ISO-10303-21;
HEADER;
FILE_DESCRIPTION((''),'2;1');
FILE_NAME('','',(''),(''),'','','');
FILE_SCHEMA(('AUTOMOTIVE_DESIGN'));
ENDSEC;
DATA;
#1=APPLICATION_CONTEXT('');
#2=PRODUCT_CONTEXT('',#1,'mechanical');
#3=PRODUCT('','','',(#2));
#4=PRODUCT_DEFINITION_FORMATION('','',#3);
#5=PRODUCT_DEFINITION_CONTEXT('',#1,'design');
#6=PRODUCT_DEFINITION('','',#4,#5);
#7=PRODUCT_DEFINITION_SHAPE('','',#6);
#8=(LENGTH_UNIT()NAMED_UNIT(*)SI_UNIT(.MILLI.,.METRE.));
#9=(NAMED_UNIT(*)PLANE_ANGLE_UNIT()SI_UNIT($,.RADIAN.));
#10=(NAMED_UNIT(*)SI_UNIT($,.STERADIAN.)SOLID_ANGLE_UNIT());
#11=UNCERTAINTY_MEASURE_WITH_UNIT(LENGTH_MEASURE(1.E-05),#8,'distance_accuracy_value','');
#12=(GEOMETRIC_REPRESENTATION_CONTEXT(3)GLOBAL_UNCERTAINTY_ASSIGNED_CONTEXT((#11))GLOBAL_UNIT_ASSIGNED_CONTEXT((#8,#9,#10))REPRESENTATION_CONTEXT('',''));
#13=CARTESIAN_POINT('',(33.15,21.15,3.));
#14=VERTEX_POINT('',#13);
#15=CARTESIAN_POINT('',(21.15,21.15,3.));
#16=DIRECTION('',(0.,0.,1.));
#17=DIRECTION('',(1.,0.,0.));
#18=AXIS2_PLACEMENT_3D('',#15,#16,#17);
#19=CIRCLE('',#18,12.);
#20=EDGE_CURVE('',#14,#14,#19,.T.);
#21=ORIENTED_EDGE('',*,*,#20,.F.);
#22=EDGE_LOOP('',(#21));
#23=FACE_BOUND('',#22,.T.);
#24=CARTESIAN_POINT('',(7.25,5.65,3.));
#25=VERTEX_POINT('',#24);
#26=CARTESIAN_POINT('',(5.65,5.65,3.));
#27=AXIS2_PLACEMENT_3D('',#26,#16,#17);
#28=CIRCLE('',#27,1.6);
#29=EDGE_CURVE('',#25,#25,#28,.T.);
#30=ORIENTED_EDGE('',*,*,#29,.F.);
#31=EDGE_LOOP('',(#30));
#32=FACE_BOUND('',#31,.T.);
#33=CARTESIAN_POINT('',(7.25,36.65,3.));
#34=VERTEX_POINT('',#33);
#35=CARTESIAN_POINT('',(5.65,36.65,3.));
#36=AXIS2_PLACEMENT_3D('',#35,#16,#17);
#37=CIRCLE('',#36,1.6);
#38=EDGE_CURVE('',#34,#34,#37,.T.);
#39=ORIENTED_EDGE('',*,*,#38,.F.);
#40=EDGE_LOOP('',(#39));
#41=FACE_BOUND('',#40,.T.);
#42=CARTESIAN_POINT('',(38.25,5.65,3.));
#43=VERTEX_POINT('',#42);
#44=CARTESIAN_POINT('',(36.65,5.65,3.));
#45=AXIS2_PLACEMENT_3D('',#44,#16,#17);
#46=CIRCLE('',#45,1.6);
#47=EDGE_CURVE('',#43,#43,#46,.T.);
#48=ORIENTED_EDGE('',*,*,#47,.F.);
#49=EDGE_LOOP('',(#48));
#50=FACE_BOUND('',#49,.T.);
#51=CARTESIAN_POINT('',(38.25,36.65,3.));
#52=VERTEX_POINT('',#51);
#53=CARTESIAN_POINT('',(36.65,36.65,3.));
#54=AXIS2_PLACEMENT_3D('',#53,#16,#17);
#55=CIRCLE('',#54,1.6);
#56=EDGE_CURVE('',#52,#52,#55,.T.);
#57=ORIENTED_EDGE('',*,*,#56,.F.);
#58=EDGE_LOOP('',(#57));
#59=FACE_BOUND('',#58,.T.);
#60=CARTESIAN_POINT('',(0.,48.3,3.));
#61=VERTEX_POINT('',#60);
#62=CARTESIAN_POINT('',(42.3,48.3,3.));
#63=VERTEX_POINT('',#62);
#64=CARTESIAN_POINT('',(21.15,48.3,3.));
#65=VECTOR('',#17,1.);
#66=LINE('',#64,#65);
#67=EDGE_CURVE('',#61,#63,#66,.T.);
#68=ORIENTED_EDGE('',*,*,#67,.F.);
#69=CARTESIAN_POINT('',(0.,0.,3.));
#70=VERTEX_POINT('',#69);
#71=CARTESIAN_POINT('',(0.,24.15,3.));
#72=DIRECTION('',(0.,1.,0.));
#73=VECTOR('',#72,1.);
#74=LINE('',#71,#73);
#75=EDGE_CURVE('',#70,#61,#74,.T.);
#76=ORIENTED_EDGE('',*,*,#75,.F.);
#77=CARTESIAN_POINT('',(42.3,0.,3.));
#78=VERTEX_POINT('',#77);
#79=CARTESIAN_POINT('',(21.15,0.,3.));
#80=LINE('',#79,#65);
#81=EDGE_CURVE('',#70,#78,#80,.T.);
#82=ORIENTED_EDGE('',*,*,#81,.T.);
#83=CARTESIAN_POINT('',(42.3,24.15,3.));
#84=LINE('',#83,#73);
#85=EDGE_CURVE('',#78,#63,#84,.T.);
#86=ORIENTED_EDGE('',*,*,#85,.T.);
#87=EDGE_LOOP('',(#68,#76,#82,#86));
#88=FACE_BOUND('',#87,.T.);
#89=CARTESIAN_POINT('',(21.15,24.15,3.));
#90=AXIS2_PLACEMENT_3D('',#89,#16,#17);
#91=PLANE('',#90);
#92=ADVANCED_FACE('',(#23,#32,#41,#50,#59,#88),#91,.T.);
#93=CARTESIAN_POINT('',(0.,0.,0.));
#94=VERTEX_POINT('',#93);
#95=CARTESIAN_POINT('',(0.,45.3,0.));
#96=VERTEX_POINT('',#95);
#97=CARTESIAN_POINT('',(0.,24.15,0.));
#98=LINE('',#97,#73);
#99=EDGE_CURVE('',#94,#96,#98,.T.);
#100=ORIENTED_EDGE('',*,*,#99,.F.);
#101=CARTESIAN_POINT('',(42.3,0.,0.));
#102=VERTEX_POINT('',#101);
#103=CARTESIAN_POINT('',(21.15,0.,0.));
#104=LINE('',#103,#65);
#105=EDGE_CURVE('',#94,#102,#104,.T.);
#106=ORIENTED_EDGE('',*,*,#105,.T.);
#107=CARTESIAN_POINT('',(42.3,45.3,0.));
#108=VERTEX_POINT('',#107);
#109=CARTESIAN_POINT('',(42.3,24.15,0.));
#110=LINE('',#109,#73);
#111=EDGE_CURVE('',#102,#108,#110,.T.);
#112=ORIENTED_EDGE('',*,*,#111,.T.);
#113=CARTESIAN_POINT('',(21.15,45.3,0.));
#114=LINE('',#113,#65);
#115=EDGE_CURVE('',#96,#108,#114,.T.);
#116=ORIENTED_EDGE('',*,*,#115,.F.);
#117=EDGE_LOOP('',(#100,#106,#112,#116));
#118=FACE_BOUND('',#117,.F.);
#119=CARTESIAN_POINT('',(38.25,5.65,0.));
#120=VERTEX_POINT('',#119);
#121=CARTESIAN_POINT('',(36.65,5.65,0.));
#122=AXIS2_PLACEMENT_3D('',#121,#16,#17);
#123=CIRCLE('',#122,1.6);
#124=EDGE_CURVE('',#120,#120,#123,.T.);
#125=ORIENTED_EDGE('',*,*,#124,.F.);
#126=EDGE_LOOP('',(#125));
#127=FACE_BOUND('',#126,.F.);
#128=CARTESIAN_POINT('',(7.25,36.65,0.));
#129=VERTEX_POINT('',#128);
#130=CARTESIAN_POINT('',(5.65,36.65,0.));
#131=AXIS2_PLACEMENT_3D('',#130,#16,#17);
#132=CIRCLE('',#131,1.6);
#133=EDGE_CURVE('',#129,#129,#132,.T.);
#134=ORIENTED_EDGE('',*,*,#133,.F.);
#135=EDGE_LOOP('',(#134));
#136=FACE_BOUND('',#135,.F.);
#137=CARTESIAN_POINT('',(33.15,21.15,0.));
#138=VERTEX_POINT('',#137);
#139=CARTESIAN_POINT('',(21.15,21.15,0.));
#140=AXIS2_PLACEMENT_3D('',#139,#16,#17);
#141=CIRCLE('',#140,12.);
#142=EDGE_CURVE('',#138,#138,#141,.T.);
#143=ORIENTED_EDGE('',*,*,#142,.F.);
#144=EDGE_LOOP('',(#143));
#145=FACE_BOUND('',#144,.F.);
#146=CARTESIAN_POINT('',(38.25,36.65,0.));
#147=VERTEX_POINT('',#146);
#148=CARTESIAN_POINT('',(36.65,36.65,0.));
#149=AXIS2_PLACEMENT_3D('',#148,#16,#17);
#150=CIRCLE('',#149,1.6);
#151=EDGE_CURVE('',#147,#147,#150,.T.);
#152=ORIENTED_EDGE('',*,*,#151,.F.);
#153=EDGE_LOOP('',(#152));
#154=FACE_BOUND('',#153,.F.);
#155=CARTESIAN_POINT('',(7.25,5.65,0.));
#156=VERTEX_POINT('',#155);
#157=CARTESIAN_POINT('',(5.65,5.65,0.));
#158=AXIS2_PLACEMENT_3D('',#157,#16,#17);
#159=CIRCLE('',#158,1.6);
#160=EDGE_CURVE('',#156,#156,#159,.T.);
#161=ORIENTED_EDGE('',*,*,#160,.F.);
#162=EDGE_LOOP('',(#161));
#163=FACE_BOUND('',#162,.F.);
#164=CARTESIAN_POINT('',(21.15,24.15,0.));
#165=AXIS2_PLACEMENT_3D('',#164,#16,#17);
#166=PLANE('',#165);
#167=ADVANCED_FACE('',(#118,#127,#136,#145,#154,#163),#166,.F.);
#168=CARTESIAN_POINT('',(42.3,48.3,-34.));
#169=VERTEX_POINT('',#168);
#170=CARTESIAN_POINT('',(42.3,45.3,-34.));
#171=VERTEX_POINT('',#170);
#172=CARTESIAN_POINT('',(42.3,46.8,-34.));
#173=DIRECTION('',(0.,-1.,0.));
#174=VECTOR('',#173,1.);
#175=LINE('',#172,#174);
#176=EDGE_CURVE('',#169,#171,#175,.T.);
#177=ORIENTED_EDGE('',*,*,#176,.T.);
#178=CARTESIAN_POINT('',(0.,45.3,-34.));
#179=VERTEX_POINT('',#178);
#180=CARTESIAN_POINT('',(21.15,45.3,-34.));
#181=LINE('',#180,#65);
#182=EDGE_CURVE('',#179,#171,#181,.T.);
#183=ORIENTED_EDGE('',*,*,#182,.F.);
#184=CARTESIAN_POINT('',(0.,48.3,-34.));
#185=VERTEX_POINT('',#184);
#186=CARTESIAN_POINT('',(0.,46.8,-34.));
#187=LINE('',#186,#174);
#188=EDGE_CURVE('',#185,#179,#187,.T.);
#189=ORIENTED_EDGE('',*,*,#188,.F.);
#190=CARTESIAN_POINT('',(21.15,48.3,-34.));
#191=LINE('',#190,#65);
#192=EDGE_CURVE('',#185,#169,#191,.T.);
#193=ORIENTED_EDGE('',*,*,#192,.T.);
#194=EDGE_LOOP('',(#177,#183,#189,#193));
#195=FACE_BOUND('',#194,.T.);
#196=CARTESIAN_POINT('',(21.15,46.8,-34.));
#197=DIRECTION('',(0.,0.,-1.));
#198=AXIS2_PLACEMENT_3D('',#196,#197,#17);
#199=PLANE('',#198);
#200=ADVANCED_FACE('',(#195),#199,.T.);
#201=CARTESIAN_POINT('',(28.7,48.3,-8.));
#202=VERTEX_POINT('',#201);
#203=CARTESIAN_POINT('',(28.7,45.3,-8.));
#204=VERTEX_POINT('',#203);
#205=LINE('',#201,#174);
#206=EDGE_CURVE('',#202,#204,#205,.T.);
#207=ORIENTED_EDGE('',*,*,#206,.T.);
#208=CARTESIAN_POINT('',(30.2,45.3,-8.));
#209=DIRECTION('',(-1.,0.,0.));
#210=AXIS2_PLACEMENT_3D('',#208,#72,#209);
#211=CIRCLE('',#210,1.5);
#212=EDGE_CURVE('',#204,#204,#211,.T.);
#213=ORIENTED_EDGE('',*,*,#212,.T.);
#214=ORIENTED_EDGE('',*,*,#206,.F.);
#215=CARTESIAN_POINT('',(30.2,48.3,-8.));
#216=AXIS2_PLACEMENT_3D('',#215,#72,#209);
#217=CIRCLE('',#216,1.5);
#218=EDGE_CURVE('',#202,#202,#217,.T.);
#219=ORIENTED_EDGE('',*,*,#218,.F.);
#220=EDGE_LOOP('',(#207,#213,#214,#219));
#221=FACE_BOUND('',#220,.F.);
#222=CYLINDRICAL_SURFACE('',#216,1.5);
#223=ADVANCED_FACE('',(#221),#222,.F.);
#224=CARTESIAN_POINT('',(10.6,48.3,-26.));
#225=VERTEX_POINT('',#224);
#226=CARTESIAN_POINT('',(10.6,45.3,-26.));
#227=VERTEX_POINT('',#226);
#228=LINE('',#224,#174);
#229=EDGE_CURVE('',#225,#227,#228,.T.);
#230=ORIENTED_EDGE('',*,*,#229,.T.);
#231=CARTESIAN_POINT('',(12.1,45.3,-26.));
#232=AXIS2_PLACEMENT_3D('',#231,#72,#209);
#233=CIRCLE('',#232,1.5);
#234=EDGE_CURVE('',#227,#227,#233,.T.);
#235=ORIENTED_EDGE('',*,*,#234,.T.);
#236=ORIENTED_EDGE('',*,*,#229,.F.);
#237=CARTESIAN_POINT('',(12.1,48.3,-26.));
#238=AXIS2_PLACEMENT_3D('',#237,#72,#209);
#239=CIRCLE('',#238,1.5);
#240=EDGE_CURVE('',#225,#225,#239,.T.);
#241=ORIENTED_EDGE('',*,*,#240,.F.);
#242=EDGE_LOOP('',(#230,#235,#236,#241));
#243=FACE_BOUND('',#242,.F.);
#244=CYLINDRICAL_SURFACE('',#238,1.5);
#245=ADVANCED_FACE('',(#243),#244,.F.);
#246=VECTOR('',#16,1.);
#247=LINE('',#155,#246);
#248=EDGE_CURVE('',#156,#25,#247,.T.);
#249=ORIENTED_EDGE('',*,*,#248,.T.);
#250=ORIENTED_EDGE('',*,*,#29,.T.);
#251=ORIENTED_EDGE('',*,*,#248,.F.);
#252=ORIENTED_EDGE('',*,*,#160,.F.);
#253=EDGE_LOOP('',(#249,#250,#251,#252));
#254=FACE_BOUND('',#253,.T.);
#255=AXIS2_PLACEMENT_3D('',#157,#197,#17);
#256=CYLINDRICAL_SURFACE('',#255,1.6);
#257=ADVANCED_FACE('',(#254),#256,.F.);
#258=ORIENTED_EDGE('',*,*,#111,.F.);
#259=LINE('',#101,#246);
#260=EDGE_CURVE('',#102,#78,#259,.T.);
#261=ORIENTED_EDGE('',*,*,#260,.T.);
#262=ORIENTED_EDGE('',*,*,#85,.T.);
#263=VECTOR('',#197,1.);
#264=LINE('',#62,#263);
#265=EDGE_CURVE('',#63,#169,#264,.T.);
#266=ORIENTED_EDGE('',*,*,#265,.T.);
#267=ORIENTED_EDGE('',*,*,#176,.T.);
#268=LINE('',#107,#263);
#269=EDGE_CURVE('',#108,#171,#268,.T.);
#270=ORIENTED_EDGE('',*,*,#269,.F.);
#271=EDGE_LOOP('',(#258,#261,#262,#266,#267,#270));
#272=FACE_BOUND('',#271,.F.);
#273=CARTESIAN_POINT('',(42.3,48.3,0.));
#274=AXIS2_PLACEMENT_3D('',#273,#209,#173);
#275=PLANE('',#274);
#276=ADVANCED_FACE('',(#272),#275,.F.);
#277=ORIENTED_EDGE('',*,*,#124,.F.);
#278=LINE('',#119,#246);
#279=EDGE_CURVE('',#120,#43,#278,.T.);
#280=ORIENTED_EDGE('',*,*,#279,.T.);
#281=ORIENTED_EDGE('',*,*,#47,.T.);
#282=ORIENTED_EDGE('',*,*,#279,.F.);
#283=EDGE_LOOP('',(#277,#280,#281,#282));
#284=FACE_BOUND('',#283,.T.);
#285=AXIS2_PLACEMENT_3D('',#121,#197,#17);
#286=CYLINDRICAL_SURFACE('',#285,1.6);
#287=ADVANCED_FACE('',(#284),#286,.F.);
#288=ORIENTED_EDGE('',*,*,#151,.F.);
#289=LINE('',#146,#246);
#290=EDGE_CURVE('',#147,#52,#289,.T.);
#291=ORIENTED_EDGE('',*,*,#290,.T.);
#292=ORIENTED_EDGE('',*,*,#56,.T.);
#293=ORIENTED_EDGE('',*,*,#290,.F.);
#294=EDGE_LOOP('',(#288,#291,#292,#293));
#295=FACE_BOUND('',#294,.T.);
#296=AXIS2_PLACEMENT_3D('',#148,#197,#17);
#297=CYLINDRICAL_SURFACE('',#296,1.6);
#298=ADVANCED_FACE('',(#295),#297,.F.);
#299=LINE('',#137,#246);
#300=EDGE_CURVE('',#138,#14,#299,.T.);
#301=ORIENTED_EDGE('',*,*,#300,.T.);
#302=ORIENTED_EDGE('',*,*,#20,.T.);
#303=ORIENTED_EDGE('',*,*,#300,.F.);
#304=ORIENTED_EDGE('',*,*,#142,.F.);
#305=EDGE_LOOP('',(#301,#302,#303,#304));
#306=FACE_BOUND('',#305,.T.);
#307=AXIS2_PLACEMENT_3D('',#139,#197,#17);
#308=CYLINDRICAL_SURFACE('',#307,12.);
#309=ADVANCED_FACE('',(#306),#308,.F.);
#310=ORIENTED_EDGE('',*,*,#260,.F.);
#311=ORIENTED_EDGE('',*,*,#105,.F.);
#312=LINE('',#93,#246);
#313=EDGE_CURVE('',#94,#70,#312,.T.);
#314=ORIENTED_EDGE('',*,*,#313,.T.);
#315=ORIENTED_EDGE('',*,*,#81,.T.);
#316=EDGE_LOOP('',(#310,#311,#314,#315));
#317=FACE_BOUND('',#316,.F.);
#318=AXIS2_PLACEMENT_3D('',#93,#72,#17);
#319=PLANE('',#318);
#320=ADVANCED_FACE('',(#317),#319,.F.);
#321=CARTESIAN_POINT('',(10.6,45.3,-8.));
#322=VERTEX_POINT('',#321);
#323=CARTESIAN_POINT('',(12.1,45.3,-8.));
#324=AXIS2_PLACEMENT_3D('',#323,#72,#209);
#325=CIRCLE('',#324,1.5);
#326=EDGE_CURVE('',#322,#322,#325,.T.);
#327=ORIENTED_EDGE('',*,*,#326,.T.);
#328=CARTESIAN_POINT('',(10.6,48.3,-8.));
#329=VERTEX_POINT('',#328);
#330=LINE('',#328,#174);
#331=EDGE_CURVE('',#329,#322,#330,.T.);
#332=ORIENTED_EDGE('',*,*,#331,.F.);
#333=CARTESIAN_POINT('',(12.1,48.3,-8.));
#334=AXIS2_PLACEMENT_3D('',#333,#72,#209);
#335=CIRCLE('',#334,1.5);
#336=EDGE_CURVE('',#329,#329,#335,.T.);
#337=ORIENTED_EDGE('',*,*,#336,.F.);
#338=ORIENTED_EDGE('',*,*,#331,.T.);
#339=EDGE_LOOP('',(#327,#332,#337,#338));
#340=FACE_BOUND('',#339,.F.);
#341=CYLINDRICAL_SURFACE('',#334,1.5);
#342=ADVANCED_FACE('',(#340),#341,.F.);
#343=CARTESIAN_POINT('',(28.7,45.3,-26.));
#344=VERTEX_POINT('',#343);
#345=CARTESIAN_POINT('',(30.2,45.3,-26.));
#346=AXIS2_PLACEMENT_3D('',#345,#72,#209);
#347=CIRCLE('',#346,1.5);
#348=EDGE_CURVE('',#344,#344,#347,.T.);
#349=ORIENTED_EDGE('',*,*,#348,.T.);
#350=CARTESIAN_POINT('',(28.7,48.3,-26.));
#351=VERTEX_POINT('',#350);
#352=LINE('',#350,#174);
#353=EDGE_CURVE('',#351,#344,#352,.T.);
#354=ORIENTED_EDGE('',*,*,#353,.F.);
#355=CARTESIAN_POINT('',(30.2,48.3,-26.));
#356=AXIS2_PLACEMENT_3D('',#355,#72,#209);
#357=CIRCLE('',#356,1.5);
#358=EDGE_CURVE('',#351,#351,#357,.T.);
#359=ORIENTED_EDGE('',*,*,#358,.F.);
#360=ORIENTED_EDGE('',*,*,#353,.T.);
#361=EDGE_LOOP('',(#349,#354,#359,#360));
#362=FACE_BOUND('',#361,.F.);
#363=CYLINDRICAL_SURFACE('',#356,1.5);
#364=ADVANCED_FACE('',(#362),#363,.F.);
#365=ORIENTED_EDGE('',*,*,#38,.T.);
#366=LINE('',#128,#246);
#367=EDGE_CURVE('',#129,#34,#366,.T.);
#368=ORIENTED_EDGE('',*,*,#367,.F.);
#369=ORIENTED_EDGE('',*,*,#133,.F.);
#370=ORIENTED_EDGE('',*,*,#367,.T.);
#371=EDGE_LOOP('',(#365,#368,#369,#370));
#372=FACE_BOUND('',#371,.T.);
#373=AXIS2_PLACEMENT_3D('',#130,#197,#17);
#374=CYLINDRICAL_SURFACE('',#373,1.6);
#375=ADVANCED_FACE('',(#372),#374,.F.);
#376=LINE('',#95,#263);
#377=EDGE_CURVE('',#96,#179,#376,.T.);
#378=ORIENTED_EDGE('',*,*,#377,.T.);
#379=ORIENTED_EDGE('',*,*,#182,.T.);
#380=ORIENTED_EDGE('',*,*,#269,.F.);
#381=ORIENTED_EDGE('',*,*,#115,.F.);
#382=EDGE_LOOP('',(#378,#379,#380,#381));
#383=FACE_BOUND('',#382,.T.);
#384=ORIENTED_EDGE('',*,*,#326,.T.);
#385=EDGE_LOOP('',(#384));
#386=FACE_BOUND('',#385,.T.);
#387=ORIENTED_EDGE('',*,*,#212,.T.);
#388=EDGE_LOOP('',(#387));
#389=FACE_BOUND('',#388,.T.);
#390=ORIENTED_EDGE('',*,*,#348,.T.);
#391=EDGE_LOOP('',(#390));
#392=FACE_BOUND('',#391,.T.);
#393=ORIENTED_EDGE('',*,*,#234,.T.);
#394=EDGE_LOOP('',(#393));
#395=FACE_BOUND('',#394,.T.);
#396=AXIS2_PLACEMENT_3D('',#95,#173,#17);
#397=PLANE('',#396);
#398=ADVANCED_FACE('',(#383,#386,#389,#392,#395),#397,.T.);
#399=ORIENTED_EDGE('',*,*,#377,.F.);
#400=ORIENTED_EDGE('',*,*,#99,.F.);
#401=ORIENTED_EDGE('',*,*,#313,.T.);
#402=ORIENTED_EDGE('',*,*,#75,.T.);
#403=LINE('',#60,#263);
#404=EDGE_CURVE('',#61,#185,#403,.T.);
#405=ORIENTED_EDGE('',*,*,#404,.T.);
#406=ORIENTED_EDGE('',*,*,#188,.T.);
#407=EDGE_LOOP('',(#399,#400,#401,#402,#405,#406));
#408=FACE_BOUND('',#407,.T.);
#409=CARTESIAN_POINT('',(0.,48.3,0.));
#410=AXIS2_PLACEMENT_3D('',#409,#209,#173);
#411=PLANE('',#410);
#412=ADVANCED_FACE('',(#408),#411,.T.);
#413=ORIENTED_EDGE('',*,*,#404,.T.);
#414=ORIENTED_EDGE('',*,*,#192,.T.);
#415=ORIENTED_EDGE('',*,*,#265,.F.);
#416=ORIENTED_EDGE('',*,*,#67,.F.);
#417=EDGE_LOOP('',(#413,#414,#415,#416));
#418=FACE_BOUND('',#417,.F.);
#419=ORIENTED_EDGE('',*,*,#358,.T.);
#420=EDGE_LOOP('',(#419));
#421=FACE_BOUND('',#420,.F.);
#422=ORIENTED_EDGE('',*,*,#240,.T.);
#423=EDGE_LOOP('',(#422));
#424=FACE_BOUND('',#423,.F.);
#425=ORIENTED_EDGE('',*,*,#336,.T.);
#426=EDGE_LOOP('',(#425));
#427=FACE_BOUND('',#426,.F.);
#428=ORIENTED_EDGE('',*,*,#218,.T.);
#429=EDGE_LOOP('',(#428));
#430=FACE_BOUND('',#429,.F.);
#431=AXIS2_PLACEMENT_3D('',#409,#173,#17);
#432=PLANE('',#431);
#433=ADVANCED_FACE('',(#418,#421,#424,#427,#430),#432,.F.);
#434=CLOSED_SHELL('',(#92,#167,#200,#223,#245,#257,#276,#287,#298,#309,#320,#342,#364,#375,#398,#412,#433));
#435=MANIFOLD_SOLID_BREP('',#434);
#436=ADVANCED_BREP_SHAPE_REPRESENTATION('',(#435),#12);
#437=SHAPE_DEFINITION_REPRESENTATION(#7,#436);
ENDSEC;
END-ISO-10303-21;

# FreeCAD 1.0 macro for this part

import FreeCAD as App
import Part
import Sketcher

V = App.Vector
Q = App.Units.Quantity

doc = App.newDocument("Part")
body = doc.addObject("PartDesign::Body", "Body")

sketch1 = body.newObject("Sketcher::SketchObject", "Sketch")
sketch1.AttachmentSupport = (doc.getObject("XY_Plane"), [""])
sketch1.MapMode = "FlatFace"
sketch1.addGeometry(Part.LineSegment(V(0, 48.3, 0), V(0, 0, 0)), False)
sketch1.addGeometry(Part.LineSegment(V(0, 0, 0), V(42.3, 0, 0)), False)
sketch1.addGeometry(Part.LineSegment(V(42.3, 0, 0), V(42.3, 48.3, 0)), False)
sketch1.addGeometry(Part.LineSegment(V(42.3, 48.3, 0), V(0, 48.3, 0)), False)
sketch1.addGeometry(Part.Circle(V(5.65, 5.65, 0), V(0, 0, 1), 1.6), False)
sketch1.addGeometry(Part.Circle(V(36.65, 5.65, 0), V(0, 0, 1), 1.6), False)
sketch1.addGeometry(Part.Circle(V(21.15, 21.15, 0), V(0, 0, 1), 12), False)
sketch1.addGeometry(Part.Circle(V(5.65, 36.65, 0), V(0, 0, 1), 1.6), False)
sketch1.addGeometry(Part.Circle(V(36.65, 36.65, 0), V(0, 0, 1), 1.6), False)
sketch1.addConstraint(Sketcher.Constraint("Coincident", 0, 2, 1, 1))
sketch1.addConstraint(Sketcher.Constraint("Coincident", 1, 2, 2, 1))
sketch1.addConstraint(Sketcher.Constraint("Coincident", 2, 2, 3, 1))
sketch1.addConstraint(Sketcher.Constraint("Coincident", 3, 2, 0, 1))
sketch1.addConstraint(Sketcher.Constraint("Vertical", 0))
sketch1.addConstraint(Sketcher.Constraint("Horizontal", 1))
sketch1.addConstraint(Sketcher.Constraint("Vertical", 2))
sketch1.addConstraint(Sketcher.Constraint("Horizontal", 3))
sketch1.addConstraint(Sketcher.Constraint("Coincident", 0, 2, -1, 1))
sketch1.addConstraint(Sketcher.Constraint("Equal", 4, 5))
sketch1.addConstraint(Sketcher.Constraint("Equal", 5, 7))
sketch1.addConstraint(Sketcher.Constraint("Equal", 7, 8))
sketch1.addConstraint(Sketcher.Constraint("Horizontal", 4, 3, 5, 3))
sketch1.addConstraint(Sketcher.Constraint("Horizontal", 7, 3, 8, 3))
sketch1.addConstraint(Sketcher.Constraint("Vertical", 4, 3, 7, 3))
sketch1.addConstraint(Sketcher.Constraint("Vertical", 5, 3, 8, 3))
sketch1.addConstraint(Sketcher.Constraint("Diameter", 6, Q("24 mm")))
sketch1.addConstraint(Sketcher.Constraint("Diameter", 4, Q("3.2 mm")))
sketch1.addConstraint(Sketcher.Constraint("DistanceX", 1, 1, 1, 2, Q("42.3 mm")))
sketch1.addConstraint(Sketcher.Constraint("DistanceY", 0, 2, 0, 1, Q("48.3 mm")))
sketch1.addConstraint(Sketcher.Constraint("DistanceX", 4, 3, 5, 3, Q("31 mm")))
sketch1.addConstraint(Sketcher.Constraint("DistanceY", 4, 3, 7, 3, Q("31 mm")))
sketch1.addConstraint(Sketcher.Constraint("DistanceX", 4, 3, 6, 3, Q("15.5 mm")))
sketch1.addConstraint(Sketcher.Constraint("DistanceY", 4, 3, 6, 3, Q("15.5 mm")))
sketch1.addConstraint(Sketcher.Constraint("DistanceX", -1, 1, 4, 3, Q("5.65 mm")))
sketch1.addConstraint(Sketcher.Constraint("DistanceY", -1, 1, 4, 3, Q("5.65 mm")))
pad1 = body.newObject("PartDesign::Pad", "Pad")
pad1.Profile = sketch1
pad1.Length = 3

sketch2 = body.newObject("Sketcher::SketchObject", "Sketch001")
sketch2.AttachmentSupport = (doc.getObject("XY_Plane"), [""])
sketch2.MapMode = "FlatFace"
sketch2.addGeometry(Part.LineSegment(V(0, 45.3, 0), V(0, 48.3, 0)), False)
sketch2.addGeometry(Part.LineSegment(V(0, 48.3, 0), V(42.3, 48.3, 0)), False)
sketch2.addGeometry(Part.LineSegment(V(42.3, 48.3, 0), V(42.3, 45.3, 0)), False)
sketch2.addGeometry(Part.LineSegment(V(42.3, 45.3, 0), V(0, 45.3, 0)), False)
sketch2.addConstraint(Sketcher.Constraint("Coincident", 0, 2, 1, 1))
sketch2.addConstraint(Sketcher.Constraint("Coincident", 1, 2, 2, 1))
sketch2.addConstraint(Sketcher.Constraint("Coincident", 2, 2, 3, 1))
sketch2.addConstraint(Sketcher.Constraint("Coincident", 3, 2, 0, 1))
sketch2.addConstraint(Sketcher.Constraint("Vertical", 0))
sketch2.addConstraint(Sketcher.Constraint("Horizontal", 1))
sketch2.addConstraint(Sketcher.Constraint("Vertical", 2))
sketch2.addConstraint(Sketcher.Constraint("Horizontal", 3))
sketch2.addConstraint(Sketcher.Constraint("PointOnObject", 0, 2, -2))
sketch2.addConstraint(Sketcher.Constraint("DistanceY", 0, 1, 0, 2, Q("3 mm")))
sketch2.addConstraint(Sketcher.Constraint("DistanceX", 1, 1, 1, 2, Q("42.3 mm")))
sketch2.addConstraint(Sketcher.Constraint("DistanceY", -1, 1, 0, 2, Q("48.3 mm")))
pad2 = body.newObject("PartDesign::Pad", "Pad001")
pad2.Profile = sketch2
pad2.Length = 34
pad2.Reversed = True

sketch3 = body.newObject("Sketcher::SketchObject", "Sketch002")
sketch3.AttachmentSupport = (doc.getObject("XZ_Plane"), [""])
sketch3.MapMode = "FlatFace"
sketch3.AttachmentOffset = App.Placement(V(0, 0, -48.3), App.Rotation())
sketch3.addGeometry(Part.Circle(V(30.2, -8, 0), V(0, 0, 1), 1.5), False)
sketch3.addGeometry(Part.Circle(V(12.1, -8, 0), V(0, 0, 1), 1.5), False)
sketch3.addGeometry(Part.Circle(V(30.2, -26, 0), V(0, 0, 1), 1.5), False)
sketch3.addGeometry(Part.Circle(V(12.1, -26, 0), V(0, 0, 1), 1.5), False)
sketch3.addConstraint(Sketcher.Constraint("Equal", 0, 1))
sketch3.addConstraint(Sketcher.Constraint("Equal", 1, 2))
sketch3.addConstraint(Sketcher.Constraint("Equal", 2, 3))
sketch3.addConstraint(Sketcher.Constraint("Horizontal", 0, 3, 1, 3))
sketch3.addConstraint(Sketcher.Constraint("Horizontal", 2, 3, 3, 3))
sketch3.addConstraint(Sketcher.Constraint("Vertical", 0, 3, 2, 3))
sketch3.addConstraint(Sketcher.Constraint("Vertical", 1, 3, 3, 3))
sketch3.addConstraint(Sketcher.Constraint("Diameter", 0, Q("3 mm")))
sketch3.addConstraint(Sketcher.Constraint("DistanceY", 0, 3, -1, 1, Q("8 mm")))
sketch3.addConstraint(Sketcher.Constraint("DistanceY", 2, 3, -1, 1, Q("26 mm")))
sketch3.addConstraint(Sketcher.Constraint("DistanceX", -1, 1, 0, 3, Q("30.2 mm")))
sketch3.addConstraint(Sketcher.Constraint("DistanceX", -1, 1, 1, 3, Q("12.1 mm")))
pocket1 = body.newObject("PartDesign::Pocket", "Pocket")
pocket1.Profile = sketch3
pocket1.Type = "ThroughAll"
pocket1.Reversed = True

doc.recompute()
